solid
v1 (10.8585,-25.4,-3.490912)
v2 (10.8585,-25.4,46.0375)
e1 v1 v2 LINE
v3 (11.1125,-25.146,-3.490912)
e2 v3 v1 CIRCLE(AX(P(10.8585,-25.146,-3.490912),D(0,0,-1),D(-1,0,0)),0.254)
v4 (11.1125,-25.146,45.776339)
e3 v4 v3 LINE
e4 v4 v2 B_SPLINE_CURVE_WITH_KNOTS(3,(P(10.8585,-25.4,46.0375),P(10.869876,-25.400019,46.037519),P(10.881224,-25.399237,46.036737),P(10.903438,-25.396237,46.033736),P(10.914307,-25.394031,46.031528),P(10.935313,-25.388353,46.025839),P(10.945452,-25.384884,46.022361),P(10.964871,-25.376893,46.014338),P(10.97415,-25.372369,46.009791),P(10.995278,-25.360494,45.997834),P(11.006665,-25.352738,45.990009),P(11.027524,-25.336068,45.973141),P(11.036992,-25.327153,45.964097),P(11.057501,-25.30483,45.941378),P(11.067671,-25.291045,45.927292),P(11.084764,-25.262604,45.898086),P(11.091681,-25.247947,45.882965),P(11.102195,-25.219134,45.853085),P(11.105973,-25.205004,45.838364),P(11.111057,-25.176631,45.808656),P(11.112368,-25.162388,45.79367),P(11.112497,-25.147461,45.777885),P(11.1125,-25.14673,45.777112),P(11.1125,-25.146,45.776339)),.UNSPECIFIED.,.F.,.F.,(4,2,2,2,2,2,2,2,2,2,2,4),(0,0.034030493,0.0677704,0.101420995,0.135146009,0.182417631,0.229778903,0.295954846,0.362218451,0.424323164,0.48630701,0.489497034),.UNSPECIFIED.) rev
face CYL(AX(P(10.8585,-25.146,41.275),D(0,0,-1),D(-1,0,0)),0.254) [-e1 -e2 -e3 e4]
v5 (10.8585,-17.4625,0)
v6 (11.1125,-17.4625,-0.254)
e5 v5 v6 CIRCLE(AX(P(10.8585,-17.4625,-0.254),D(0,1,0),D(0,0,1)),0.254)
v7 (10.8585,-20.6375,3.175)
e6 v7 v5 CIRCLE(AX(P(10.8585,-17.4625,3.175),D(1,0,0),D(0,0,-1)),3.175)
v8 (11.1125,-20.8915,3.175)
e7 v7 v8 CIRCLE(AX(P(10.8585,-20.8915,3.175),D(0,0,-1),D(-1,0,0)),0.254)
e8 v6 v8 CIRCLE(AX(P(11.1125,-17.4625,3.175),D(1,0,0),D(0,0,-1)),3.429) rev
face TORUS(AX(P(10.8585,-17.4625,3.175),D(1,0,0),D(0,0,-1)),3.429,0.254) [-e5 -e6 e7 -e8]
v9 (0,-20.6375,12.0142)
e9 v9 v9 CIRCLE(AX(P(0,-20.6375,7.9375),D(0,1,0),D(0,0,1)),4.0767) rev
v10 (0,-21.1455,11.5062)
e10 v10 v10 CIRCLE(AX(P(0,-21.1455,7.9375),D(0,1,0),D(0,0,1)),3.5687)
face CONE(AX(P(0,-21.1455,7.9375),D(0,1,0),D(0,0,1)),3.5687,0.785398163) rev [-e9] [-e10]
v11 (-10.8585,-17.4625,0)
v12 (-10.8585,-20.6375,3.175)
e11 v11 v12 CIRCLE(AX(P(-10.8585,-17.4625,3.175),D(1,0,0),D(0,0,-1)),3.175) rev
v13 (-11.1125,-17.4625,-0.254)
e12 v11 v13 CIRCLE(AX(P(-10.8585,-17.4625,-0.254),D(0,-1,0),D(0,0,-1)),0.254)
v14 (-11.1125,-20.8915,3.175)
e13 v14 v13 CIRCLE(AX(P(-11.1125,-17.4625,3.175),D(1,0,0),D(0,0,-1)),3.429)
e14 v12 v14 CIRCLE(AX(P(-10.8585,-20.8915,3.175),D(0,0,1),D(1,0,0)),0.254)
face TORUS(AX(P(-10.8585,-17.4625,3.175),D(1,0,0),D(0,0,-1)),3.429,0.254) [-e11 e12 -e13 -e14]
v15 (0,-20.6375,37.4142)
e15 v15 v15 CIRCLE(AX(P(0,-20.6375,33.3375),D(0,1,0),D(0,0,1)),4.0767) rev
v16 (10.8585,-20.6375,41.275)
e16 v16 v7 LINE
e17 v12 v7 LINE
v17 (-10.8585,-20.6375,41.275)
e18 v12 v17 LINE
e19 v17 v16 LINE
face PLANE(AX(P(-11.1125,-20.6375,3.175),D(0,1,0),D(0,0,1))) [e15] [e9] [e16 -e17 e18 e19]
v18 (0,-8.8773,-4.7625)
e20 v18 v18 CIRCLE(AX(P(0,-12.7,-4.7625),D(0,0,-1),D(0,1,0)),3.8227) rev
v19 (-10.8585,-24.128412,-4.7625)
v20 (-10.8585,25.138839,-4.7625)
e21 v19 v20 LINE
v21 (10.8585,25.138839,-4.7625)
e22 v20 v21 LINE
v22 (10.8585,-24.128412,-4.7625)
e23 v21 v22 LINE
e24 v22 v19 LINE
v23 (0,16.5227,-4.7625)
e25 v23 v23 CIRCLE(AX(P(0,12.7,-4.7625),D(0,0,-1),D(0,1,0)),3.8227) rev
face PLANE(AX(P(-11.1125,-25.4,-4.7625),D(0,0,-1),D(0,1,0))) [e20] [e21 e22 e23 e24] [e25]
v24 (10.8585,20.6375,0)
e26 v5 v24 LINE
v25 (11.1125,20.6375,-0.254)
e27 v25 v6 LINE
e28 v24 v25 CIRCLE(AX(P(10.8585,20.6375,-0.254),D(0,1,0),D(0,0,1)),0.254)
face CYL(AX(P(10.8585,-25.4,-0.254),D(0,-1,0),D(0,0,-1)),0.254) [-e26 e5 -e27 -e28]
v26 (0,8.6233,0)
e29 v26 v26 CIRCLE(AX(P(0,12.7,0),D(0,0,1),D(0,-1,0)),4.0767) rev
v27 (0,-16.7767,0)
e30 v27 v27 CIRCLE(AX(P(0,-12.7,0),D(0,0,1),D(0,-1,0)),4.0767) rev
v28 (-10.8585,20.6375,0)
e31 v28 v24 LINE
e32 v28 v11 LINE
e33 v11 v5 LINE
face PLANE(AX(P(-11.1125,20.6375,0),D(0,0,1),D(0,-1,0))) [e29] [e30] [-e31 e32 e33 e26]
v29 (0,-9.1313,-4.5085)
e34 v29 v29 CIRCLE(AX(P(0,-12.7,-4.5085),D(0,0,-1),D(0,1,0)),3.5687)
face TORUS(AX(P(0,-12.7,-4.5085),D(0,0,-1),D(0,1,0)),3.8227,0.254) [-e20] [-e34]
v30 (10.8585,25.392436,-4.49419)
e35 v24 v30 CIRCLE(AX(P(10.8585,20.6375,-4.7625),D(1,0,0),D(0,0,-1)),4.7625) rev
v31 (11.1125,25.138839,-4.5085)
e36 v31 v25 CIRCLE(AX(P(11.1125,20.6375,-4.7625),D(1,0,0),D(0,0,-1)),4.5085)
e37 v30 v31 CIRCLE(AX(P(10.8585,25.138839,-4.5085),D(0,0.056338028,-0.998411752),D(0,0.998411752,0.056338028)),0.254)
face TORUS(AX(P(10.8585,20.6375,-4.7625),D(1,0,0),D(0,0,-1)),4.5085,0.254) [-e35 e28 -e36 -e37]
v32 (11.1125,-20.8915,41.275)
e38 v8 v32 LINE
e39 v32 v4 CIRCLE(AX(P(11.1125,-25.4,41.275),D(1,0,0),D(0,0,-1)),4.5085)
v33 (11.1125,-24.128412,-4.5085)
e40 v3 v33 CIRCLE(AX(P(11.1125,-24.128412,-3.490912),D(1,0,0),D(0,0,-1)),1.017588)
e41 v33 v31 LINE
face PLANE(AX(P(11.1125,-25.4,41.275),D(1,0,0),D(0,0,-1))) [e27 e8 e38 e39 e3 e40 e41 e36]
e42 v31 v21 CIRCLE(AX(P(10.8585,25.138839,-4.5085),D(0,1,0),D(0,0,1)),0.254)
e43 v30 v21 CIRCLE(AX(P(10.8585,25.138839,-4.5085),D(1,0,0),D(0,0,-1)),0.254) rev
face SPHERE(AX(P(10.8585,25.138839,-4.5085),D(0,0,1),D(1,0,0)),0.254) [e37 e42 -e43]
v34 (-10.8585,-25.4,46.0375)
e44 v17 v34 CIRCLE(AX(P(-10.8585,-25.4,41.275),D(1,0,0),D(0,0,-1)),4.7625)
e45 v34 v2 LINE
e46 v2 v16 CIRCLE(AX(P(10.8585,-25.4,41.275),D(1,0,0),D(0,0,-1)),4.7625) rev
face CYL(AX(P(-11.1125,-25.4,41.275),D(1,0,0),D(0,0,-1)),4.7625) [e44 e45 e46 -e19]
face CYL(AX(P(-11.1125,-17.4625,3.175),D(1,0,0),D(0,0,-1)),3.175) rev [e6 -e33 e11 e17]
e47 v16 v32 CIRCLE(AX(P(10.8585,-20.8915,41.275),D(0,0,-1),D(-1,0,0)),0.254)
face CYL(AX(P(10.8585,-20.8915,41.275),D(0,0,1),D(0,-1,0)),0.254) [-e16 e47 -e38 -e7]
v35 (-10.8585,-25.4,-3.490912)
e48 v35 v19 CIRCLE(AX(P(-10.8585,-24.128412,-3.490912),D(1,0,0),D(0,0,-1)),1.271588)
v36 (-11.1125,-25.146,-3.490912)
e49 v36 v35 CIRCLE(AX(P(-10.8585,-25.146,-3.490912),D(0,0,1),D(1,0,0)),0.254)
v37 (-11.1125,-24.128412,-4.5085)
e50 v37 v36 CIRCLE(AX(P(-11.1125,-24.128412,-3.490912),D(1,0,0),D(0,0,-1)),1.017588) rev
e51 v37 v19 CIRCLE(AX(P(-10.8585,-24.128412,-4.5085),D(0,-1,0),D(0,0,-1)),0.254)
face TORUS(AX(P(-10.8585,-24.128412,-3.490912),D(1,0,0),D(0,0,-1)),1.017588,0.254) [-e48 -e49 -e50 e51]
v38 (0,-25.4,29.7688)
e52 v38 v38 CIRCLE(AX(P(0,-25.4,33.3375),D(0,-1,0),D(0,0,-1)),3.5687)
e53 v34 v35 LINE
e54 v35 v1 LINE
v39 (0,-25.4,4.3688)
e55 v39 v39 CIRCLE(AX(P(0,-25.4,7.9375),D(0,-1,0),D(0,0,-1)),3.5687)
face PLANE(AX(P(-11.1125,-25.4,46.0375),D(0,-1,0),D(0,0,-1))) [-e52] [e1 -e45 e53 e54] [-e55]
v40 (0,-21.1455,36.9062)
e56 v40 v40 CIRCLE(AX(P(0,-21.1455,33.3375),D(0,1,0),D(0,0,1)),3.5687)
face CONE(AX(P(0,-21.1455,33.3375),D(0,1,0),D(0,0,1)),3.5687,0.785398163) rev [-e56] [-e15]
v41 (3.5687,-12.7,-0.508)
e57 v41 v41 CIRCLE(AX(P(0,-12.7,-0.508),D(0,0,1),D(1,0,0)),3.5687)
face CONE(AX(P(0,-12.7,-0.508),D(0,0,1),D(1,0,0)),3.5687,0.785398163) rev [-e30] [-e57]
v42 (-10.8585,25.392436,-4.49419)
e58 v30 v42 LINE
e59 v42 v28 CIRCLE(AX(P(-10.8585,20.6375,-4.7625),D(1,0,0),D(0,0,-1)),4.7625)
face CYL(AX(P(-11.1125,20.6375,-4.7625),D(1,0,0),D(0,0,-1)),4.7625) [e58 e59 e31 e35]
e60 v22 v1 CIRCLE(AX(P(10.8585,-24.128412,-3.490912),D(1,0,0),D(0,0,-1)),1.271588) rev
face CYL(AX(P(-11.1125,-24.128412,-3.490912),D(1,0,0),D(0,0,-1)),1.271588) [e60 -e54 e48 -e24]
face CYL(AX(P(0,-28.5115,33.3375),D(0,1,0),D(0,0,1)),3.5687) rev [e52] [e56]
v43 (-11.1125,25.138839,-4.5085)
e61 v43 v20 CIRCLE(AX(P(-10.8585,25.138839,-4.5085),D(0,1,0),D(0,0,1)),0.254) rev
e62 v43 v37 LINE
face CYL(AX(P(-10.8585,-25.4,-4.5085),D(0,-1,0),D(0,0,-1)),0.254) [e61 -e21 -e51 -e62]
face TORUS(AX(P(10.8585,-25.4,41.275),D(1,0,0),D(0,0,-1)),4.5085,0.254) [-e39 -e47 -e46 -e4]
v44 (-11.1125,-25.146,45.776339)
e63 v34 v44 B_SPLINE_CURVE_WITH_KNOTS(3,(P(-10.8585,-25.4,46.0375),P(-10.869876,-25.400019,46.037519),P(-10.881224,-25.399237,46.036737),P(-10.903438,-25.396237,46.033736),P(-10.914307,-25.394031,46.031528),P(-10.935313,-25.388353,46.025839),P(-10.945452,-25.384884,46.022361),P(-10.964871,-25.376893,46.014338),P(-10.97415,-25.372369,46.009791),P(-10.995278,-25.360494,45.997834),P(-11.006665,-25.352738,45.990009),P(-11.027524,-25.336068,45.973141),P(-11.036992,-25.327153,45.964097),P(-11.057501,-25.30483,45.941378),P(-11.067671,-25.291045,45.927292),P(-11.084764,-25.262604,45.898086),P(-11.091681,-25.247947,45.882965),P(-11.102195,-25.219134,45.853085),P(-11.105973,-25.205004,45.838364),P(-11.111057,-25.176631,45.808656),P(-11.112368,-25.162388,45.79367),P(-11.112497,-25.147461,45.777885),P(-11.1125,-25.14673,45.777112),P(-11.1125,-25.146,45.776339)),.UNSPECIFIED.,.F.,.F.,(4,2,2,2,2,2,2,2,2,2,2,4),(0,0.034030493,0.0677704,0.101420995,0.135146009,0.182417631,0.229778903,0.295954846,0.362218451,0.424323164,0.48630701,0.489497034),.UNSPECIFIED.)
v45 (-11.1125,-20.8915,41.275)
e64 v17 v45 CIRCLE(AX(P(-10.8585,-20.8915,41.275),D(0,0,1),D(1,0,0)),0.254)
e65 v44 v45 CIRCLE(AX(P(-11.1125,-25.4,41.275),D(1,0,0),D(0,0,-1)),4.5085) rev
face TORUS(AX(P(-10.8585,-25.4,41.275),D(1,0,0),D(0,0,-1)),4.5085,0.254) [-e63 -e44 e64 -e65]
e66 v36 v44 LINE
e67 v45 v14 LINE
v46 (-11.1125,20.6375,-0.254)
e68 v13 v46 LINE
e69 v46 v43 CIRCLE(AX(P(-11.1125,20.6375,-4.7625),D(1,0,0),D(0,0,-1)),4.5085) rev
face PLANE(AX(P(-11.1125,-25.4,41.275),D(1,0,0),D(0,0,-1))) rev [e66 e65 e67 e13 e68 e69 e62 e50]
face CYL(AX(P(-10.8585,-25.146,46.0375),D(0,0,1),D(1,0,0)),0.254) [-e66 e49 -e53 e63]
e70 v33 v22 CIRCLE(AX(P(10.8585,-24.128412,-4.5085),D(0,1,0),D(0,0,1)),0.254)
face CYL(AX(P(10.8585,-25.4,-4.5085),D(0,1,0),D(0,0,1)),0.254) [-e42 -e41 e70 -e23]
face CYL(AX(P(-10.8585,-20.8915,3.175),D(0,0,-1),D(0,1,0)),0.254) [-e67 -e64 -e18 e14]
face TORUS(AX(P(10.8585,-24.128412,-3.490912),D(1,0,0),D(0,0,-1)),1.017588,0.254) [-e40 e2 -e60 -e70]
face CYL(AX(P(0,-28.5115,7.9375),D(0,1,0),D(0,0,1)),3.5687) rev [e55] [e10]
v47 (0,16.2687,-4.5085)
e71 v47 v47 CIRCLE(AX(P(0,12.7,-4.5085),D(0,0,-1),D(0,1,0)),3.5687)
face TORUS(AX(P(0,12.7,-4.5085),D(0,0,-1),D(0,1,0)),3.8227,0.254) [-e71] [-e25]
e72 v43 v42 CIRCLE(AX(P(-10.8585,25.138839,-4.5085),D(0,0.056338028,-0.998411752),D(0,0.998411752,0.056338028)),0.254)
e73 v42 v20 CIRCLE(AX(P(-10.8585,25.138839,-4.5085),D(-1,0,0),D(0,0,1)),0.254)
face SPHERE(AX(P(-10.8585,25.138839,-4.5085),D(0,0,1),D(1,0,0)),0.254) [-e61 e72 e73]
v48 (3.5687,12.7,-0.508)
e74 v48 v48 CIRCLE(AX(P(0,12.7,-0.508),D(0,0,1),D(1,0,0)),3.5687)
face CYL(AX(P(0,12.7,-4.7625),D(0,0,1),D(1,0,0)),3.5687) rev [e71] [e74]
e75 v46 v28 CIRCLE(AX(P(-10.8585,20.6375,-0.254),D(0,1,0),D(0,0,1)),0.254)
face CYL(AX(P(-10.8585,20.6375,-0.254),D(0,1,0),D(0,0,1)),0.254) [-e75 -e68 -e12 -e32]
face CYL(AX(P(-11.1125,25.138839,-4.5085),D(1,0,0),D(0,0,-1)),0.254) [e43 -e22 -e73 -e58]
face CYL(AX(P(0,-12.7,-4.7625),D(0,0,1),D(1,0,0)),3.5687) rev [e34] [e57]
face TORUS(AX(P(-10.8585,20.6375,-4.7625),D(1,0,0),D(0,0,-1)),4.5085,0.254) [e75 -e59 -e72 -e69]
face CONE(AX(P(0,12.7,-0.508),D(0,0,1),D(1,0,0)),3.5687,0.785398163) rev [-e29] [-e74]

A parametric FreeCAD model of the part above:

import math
import FreeCAD as App
import Part
import Sketcher

V = App.Vector
Q = App.Units.Quantity


def edges_at(feature, points):
    """Names of the edges that pass closest to the given points."""
    edges = feature.Shape.Edges
    near = lambda p: min(range(len(edges)), key=lambda i: edges[i].distToShape(Part.Vertex(*p))[0])
    return sorted({f"Edge{near(p) + 1}" for p in points})

doc = App.newDocument("Part")
body = doc.addObject("PartDesign::Body", "Body")

# Sketch on YZ plane
sketch1 = body.newObject("Sketcher::SketchObject", "Sketch")
sketch1.AttachmentSupport = (doc.getObject("YZ_Plane"), [""])
sketch1.MapMode = "FlatFace"
sketch1.AttachmentOffset = App.Placement(V(0, 0, 0.4375 * 25.4), App.Rotation())
sketch1.addGeometry([
    Part.LineSegment(V(-20.6, 3.2, 0), V(-20.6, 41.3, 0)),  # 0
    Part.ArcOfCircle(Part.Circle(V(-25.4, 41.3, 0), V(0, 0, 1), 4.8), math.radians(0), math.radians(90)),  # 1
    Part.LineSegment(V(-25.4, 46, 0), V(-25.4, -4.8, 0)),  # 2
    Part.LineSegment(V(-25.4, -4.8, 0), V(25.4, -4.8, 0)),  # 3
    Part.ArcOfCircle(Part.Circle(V(20.6, -4.8, 0), V(0, 0, 1), 4.8), math.radians(0), math.radians(90)),  # 4
    Part.LineSegment(V(20.6, 0, 0), V(-17.5, 0, 0)),  # 5
    Part.ArcOfCircle(Part.Circle(V(-17.5, 3.2, 0), V(0, 0, 1), 3.2), math.radians(-180), math.radians(-90)),  # 6
], False)
sketch1.addConstraint([
    Sketcher.Constraint("Tangent", 0, 2, 1, 1),
    Sketcher.Constraint("Coincident", 1, 2, 2, 1),
    Sketcher.Constraint("Coincident", 2, 2, 3, 1),
    Sketcher.Constraint("Coincident", 3, 2, 4, 1),
    Sketcher.Constraint("Tangent", 4, 2, 5, 1),
    Sketcher.Constraint("Tangent", 5, 2, 6, 2),
    Sketcher.Constraint("Tangent", 6, 1, 0, 1),
    Sketcher.Constraint("Vertical", 0),
    Sketcher.Constraint("Vertical", 2),
    Sketcher.Constraint("Horizontal", 3),
    Sketcher.Constraint("Horizontal", 5),
    Sketcher.Constraint("Equal", 1, 4),
    Sketcher.Constraint("PointOnObject", 4, 2, -1),
    Sketcher.Constraint("Horizontal", 4, 3, 2, 2),
    Sketcher.Constraint("Equal", 5, 0),
    Sketcher.Constraint("Equal", 3, 2),
    Sketcher.Constraint("DistanceX", 3, 1, 3, 2, Q("2 in")),
    Sketcher.Constraint("DistanceX", 5, 2, 5, 1, Q("1.5 in")),
    Sketcher.Constraint("DistanceX", 1, 3, -1, 1, Q("1 in")),
    Sketcher.Constraint("Radius", 1, Q("0.1875 in")),
])
pad1 = body.newObject("PartDesign::Pad", "Pad")
pad1.Profile = sketch1
pad1.Length = Q("0.875 in")
pad1.Reversed = True
doc.recompute()

fillet = body.newObject("PartDesign::Fillet", "Fillet")
fillet.Base = (pad1, edges_at(pad1, [(0, -25.4, -4.763)]))
fillet.Radius = 1.271588

# Sketch on XY plane
sketch2 = body.newObject("Sketcher::SketchObject", "Sketch001")
sketch2.AttachmentSupport = (doc.getObject("XY_Plane"), [""])
sketch2.MapMode = "FlatFace"
sketch2.addGeometry([
    Part.Circle(V(0, 12.7, 0), V(0, 0, 1), 3.6),
    Part.Circle(V(0, -12.7, 0), V(0, 0, 1), 3.6),
], False)
sketch2.addConstraint([
    Sketcher.Constraint("Equal", 0, 1),
    Sketcher.Constraint("Symmetric", 0, 3, 1, 3, -1, 1),
    Sketcher.Constraint("PointOnObject", 0, 3, -2),
    Sketcher.Constraint("Diameter", 0, Q("0.281 in")),
    Sketcher.Constraint("DistanceY", 1, 3, 0, 3, Q("1 in")),
])
pocket1 = body.newObject("PartDesign::Pocket", "Pocket")
pocket1.Profile = sketch2
pocket1.Type = "ThroughAll"

# Sketch on XZ plane
sketch3 = body.newObject("Sketcher::SketchObject", "Sketch002")
sketch3.AttachmentSupport = (doc.getObject("XZ_Plane"), [""])
sketch3.MapMode = "FlatFace"
sketch3.AttachmentOffset = App.Placement(V(0, 0, 0.8125 * 25.4), App.Rotation())
sketch3.addGeometry([
    Part.Circle(V(0, 7.9, 0), V(0, 0, 1), 3.6),
    Part.Circle(V(0, 33.3, 0), V(0, 0, 1), 3.6),
], False)
sketch3.addConstraint([
    Sketcher.Constraint("Equal", 0, 1),
    Sketcher.Constraint("PointOnObject", 0, 3, -2),
    Sketcher.Constraint("PointOnObject", 1, 3, -2),
    Sketcher.Constraint("Diameter", 0, Q("0.281 in")),
    Sketcher.Constraint("DistanceY", 0, 3, 1, 3, Q("1 in")),
    Sketcher.Constraint("DistanceY", -1, 1, 0, 3, Q("0.3125 in")),
])
pocket2 = body.newObject("PartDesign::Pocket", "Pocket001")
pocket2.Profile = sketch3
pocket2.Length = Q("0.31 in")
pocket2.Reversed = True
doc.recompute()

chamfer = body.newObject("PartDesign::Chamfer", "Chamfer")
chamfer.Base = (pocket2, edges_at(pocket2, [
    (-3.569, 12.7, 0),
    (3.569, -12.7, 0),
    (0, -20.637, 4.369),
    (0, -20.637, 29.769),
]))
chamfer.Size = Q("0.02 in")
doc.recompute()

fillet2 = body.newObject("PartDesign::Fillet", "Fillet001")
fillet2.Base = (chamfer, edges_at(chamfer, [
    (0, 25.4, -4.763),
    (-11.113, 24.005, -1.395),
    (-11.113, 1.587, 0),
    (-11.113, -19.708, 0.93),
    (-11.113, -20.637, 22.225),
    (11.113, 0.636, -4.763),
    (11.113, -25.028, -4.39),
    (-11.113, 0.636, -4.763),
    (-11.113, -25.028, -4.39),
    (-3.569, 12.7, -4.763),
    (3.569, -12.7, -4.763),
    (-11.113, -22.032, 44.643),
    (11.113, -20.637, 22.225),
    (-11.113, -25.4, 21.273),
    (11.113, -19.708, 0.93),
    (11.113, 1.587, 0),
    (11.113, 24.005, -1.395),
    (11.113, -25.4, 21.273),
    (11.113, -22.032, 44.643),
]))
fillet2.Radius = Q("0.01 in")

doc.recompute()
